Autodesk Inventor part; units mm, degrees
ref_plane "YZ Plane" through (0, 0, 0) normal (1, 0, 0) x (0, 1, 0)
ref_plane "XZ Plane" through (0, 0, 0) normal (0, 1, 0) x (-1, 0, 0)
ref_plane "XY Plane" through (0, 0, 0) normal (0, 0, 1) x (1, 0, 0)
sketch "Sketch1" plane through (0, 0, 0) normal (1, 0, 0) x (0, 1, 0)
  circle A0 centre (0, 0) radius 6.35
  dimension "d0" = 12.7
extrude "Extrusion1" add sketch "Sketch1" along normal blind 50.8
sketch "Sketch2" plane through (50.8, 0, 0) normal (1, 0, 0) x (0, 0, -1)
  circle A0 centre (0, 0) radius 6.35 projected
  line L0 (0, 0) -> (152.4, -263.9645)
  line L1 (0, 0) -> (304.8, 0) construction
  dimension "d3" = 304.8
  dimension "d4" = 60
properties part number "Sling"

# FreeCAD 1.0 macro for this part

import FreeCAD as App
import Part
import Sketcher
from FreeCAD import Vector
Q = App.Units.Quantity

doc = App.newDocument("Part")
body = doc.addObject("PartDesign::Body", "Body")

sketch1 = doc.addObject("Sketcher::SketchObject", "Sketch")
body.addObject(sketch1)
sketch1.AttachmentSupport = (doc.YZ_Plane, [""])
sketch1.MapMode = "FlatFace"
sketch1.addGeometry(Part.Circle(Vector(0, 0, 0), Vector(0, 0, 1), 6), False)
sketch1.addConstraint(Sketcher.Constraint("Coincident", 0, 3, -1, 1))
sketch1.addConstraint(Sketcher.Constraint("Diameter", 0, Q("0.5 in")))
pad1 = doc.addObject("PartDesign::Pad", "Pad")
body.addObject(pad1)
pad1.Profile = sketch1
pad1.Length = Q("2 in")

doc.recompute()
